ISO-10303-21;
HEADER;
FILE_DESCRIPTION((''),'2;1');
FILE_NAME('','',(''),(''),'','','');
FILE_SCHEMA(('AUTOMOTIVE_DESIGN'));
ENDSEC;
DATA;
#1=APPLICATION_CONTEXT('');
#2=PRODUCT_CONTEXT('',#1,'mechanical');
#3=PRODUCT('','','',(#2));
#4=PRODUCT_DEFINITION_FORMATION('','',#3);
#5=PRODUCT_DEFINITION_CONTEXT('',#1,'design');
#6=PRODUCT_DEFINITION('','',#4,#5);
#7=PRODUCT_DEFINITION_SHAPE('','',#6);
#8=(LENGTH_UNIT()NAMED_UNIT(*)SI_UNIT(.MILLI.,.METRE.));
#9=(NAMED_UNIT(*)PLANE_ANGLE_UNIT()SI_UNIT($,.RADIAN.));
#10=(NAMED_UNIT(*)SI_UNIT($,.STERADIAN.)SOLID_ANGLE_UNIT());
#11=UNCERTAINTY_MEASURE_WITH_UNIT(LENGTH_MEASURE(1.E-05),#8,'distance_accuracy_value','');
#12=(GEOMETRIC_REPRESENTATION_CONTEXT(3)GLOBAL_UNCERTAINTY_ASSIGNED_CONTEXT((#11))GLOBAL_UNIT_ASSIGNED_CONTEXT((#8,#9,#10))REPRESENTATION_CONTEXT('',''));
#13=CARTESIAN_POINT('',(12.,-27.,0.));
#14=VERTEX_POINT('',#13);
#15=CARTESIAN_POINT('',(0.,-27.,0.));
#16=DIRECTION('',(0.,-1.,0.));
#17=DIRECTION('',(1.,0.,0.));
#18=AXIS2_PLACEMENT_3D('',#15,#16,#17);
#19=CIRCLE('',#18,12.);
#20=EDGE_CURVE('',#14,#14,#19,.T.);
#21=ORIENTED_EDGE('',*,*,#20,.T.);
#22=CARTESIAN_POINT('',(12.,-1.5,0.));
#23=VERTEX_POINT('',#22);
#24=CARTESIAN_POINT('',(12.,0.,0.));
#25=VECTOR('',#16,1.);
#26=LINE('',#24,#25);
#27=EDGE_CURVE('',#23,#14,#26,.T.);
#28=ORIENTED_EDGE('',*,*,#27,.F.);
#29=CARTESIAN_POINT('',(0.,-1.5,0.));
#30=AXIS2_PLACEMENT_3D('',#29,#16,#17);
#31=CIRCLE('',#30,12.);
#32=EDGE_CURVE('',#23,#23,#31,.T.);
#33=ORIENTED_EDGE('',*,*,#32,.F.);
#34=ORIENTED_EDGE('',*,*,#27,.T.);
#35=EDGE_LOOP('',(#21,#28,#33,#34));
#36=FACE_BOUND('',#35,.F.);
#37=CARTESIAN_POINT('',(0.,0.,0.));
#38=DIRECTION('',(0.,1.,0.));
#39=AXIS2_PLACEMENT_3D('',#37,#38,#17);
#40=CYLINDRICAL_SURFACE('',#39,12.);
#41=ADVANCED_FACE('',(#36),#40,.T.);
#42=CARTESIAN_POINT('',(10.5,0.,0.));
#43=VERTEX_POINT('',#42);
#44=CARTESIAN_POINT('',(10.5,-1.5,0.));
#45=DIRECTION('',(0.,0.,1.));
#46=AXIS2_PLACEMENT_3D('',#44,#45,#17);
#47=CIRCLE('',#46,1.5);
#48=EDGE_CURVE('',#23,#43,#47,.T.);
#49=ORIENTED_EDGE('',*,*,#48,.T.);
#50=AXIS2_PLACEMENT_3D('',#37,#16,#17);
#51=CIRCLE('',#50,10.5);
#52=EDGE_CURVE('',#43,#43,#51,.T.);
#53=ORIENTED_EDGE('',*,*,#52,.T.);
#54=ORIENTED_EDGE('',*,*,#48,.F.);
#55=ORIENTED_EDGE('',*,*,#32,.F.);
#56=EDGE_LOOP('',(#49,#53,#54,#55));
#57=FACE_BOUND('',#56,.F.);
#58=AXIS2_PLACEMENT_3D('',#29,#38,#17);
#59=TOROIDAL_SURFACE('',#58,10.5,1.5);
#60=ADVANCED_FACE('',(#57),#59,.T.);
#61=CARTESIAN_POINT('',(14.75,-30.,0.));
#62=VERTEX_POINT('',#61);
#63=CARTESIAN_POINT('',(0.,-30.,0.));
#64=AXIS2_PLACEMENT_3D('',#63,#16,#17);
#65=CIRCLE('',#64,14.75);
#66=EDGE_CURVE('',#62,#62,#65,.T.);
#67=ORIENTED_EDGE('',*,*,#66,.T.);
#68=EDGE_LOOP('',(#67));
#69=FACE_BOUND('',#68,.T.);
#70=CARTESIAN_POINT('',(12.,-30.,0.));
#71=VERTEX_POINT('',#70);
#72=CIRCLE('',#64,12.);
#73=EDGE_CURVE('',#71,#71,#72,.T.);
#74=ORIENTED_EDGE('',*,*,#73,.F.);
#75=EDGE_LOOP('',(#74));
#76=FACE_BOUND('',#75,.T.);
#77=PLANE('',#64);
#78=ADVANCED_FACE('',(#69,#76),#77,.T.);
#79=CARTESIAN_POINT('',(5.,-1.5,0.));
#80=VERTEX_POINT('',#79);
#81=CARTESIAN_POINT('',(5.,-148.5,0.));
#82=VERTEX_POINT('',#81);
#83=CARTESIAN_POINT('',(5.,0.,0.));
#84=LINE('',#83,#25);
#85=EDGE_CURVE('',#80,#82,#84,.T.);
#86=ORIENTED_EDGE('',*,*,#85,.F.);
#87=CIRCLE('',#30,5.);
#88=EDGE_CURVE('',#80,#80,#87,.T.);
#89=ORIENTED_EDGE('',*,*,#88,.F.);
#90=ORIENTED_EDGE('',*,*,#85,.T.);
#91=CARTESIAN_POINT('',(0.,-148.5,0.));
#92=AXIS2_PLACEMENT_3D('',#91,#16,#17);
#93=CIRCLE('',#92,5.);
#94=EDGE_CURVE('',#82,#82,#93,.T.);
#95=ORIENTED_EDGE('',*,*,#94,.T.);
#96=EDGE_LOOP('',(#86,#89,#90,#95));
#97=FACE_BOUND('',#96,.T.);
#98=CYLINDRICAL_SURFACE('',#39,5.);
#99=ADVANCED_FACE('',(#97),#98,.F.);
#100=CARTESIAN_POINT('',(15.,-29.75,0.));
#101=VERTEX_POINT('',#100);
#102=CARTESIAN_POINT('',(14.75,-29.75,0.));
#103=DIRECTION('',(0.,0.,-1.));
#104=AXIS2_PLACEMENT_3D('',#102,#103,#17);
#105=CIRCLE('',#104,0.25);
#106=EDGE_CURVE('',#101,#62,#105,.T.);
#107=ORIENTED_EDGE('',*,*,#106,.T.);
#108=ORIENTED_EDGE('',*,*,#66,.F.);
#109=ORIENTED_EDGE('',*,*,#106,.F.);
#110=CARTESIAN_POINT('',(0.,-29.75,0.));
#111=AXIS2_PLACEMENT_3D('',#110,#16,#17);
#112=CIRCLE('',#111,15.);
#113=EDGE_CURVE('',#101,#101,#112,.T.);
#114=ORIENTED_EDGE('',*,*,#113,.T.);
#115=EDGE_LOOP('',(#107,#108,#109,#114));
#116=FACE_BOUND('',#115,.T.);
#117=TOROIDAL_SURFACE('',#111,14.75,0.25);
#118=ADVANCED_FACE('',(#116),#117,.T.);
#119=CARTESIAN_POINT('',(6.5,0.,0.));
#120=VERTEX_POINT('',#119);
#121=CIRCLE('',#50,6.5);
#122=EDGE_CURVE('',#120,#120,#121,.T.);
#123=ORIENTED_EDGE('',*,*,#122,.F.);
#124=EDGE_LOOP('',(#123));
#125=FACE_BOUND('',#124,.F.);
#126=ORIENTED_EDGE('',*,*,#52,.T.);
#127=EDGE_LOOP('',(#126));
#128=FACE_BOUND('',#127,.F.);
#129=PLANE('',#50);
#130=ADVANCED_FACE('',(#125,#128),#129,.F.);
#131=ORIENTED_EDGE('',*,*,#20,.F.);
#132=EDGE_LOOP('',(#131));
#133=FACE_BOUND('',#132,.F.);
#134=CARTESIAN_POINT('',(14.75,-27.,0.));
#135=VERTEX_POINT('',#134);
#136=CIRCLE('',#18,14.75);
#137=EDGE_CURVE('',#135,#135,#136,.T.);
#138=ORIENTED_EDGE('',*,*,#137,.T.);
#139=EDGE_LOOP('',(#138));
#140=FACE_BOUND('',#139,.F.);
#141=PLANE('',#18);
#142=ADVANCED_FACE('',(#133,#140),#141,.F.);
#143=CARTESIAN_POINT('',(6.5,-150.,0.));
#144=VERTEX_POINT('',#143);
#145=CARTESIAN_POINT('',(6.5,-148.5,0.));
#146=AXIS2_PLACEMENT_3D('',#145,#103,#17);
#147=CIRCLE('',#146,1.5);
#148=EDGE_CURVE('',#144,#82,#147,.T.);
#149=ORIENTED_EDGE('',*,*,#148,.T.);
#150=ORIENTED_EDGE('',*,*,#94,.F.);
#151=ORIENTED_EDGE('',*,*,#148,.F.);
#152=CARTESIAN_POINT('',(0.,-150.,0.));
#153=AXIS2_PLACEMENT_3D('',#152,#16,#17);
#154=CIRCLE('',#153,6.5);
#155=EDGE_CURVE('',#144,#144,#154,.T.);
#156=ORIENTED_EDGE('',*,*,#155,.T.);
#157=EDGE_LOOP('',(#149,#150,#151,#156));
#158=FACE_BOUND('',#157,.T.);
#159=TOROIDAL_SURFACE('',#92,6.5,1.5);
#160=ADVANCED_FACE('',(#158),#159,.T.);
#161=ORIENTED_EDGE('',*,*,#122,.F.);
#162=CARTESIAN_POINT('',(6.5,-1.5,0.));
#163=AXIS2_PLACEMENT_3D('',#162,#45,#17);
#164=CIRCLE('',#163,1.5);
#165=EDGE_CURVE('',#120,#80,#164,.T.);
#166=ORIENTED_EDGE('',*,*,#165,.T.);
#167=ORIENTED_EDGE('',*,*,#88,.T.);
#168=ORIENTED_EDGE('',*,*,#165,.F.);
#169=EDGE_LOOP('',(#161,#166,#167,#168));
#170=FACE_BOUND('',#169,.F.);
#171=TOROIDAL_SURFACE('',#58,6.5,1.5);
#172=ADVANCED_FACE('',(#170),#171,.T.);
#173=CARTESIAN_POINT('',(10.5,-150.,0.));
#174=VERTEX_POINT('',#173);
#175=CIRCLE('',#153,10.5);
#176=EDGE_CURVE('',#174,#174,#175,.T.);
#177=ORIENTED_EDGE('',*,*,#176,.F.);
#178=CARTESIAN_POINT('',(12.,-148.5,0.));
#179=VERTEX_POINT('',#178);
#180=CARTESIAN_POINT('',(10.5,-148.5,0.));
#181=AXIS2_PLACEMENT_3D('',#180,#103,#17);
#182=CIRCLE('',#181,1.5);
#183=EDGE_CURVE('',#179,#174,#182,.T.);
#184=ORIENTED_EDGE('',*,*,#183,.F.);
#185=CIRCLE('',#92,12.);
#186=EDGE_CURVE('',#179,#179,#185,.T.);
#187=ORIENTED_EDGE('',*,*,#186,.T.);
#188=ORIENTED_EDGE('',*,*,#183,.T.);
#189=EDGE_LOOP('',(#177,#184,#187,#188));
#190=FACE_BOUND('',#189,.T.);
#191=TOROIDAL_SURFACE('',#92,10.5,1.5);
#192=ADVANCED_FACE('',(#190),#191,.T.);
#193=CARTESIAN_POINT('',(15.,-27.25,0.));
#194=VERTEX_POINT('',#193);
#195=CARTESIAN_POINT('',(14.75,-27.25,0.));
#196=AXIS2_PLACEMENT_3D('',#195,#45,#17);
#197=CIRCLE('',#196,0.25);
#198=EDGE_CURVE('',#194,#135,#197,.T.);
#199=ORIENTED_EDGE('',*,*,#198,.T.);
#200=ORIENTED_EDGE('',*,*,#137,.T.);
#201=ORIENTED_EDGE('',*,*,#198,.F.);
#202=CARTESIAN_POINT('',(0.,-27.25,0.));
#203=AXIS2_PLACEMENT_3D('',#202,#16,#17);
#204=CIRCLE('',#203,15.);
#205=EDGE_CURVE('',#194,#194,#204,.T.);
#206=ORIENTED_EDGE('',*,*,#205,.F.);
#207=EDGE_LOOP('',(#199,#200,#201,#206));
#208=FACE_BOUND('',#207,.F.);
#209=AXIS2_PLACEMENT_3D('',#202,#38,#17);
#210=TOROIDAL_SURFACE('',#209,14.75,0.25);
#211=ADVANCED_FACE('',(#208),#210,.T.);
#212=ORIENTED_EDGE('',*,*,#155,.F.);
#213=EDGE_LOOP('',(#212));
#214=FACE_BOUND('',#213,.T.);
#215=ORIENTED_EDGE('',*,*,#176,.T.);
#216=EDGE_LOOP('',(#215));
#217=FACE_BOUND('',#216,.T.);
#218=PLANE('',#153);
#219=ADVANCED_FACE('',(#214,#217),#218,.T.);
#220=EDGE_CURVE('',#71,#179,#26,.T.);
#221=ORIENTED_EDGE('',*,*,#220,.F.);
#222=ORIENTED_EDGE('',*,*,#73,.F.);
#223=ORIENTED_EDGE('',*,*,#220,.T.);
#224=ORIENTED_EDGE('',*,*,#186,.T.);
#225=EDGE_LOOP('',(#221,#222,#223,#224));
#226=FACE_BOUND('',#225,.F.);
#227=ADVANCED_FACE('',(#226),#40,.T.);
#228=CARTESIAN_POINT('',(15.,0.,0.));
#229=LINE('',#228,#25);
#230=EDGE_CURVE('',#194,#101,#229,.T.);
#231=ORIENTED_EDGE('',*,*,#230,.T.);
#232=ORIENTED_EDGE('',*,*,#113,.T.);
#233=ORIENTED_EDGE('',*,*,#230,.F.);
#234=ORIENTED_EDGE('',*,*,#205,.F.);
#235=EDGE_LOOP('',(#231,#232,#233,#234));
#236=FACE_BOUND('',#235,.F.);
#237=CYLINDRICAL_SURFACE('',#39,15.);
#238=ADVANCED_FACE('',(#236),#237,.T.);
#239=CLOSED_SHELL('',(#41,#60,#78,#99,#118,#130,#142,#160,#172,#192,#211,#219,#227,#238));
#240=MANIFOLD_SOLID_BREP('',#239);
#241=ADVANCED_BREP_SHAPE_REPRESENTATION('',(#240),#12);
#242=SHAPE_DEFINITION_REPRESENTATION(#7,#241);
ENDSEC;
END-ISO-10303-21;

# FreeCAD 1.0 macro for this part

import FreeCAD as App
import Part
import Sketcher


def edges_at(feature, points):
    """Names of the edges that pass closest to the given points."""
    edges = feature.Shape.Edges
    near = lambda p: min(range(len(edges)), key=lambda i: edges[i].distToShape(Part.Vertex(*p))[0])
    return sorted({f"Edge{near(p) + 1}" for p in points})

doc = App.newDocument("Part")
params = doc.addObject("Spreadsheet::Sheet", "Params")
for row, (alias, value) in enumerate([
    ("sketch1_diameter", "24 mm"),
    ("sketch1_diameter2", "10 mm"),
    ("pad1_length", "150 mm"),
    ("sketch2_diameter", "30 mm"),
    ("sketch2_diameter2", "24 mm"),
    ("pad2_length", "30 mm"),
    ("sketch3_diameter", "30 mm"),
    ("sketch3_diameter2", "24 mm"),
    ("pocket1_length", "27 mm"),
    ("fillet_radius", "0.25 mm"),
    ("fillet2_radius", "1.5 mm"),
], start=1):
    params.set(f"A{row}", alias)
    params.set(f"B{row}", "=" + value)
    params.setAlias(f"B{row}", alias)

body = doc.addObject("PartDesign::Body", "Body")

# Sketch on XZ plane
sketch1 = doc.addObject("Sketcher::SketchObject", "Sketch")
body.addObject(sketch1)
sketch1.AttachmentSupport = (doc.XZ_Plane, [""])
sketch1.MapMode = "FlatFace"
sketch1.addGeometry(Part.Circle(App.Vector(0, 0, 0), App.Vector(0, 0, 1), 12), False)
sketch1.addGeometry(Part.Circle(App.Vector(0, 0, 0), App.Vector(0, 0, 1), 5), False)
sketch1.addConstraint(Sketcher.Constraint("Coincident", 0, 3, -1, 1))
sketch1.addConstraint(Sketcher.Constraint("Coincident", 1, 3, -1, 1))
sketch1.addConstraint(Sketcher.Constraint("Diameter", 0, 24.0))
sketch1.addConstraint(Sketcher.Constraint("Diameter", 1, 10.0))
sketch1.setExpression("Constraints[2]", "Params.sketch1_diameter")
sketch1.setExpression("Constraints[3]", "Params.sketch1_diameter2")
pad1 = doc.addObject("PartDesign::Pad", "Pad")
body.addObject(pad1)
pad1.Profile = sketch1
pad1.setExpression("Length", "Params.pad1_length")

# Sketch on XZ plane
sketch2 = doc.addObject("Sketcher::SketchObject", "Sketch001")
body.addObject(sketch2)
sketch2.AttachmentSupport = (doc.XZ_Plane, [""])
sketch2.MapMode = "FlatFace"
sketch2.addGeometry(Part.Circle(App.Vector(0, 0, 0), App.Vector(0, 0, 1), 15), False)
sketch2.addGeometry(Part.Circle(App.Vector(0, 0, 0), App.Vector(0, 0, 1), 12), False)
sketch2.addConstraint(Sketcher.Constraint("Coincident", 0, 3, -1, 1))
sketch2.addConstraint(Sketcher.Constraint("Coincident", 1, 3, -1, 1))
sketch2.addConstraint(Sketcher.Constraint("Diameter", 0, 30.0))
sketch2.addConstraint(Sketcher.Constraint("Diameter", 1, 24.0))
sketch2.setExpression("Constraints[2]", "Params.sketch2_diameter")
sketch2.setExpression("Constraints[3]", "Params.sketch2_diameter2")
pad2 = doc.addObject("PartDesign::Pad", "Pad001")
body.addObject(pad2)
pad2.Profile = sketch2
pad2.setExpression("Length", "Params.pad2_length")

# Sketch on XZ plane
sketch3 = doc.addObject("Sketcher::SketchObject", "Sketch002")
body.addObject(sketch3)
sketch3.AttachmentSupport = (doc.XZ_Plane, [""])
sketch3.MapMode = "FlatFace"
sketch3.addGeometry(Part.Circle(App.Vector(0, 0, 0), App.Vector(0, 0, 1), 15), False)
sketch3.addGeometry(Part.Circle(App.Vector(0, 0, 0), App.Vector(0, 0, 1), 12), False)
sketch3.addConstraint(Sketcher.Constraint("Coincident", 0, 3, -1, 1))
sketch3.addConstraint(Sketcher.Constraint("Coincident", 1, 3, -1, 1))
sketch3.addConstraint(Sketcher.Constraint("Diameter", 0, 30.0))
sketch3.addConstraint(Sketcher.Constraint("Diameter", 1, 24.0))
sketch3.setExpression("Constraints[2]", "Params.sketch3_diameter")
sketch3.setExpression("Constraints[3]", "Params.sketch3_diameter2")
pocket1 = doc.addObject("PartDesign::Pocket", "Pocket")
body.addObject(pocket1)
pocket1.Profile = sketch3
pocket1.setExpression("Length", "Params.pocket1_length")
pocket1.Reversed = True
doc.recompute()

fillet = doc.addObject("PartDesign::Fillet", "Fillet")
body.addObject(fillet)
fillet.Base = (pocket1, edges_at(pocket1, [(-15, -30, 0), (-15, -27, 0)]))
fillet.setExpression("Radius", "Params.fillet_radius")
doc.recompute()

fillet2 = doc.addObject("PartDesign::Fillet", "Fillet001")
body.addObject(fillet2)
fillet2.Base = (fillet, edges_at(fillet, [
    (-12, 0, 0),
    (-12, -150, 0),
    (-5, 0, 0),
    (-5, -150, 0),
]))
fillet2.setExpression("Radius", "Params.fillet2_radius")

doc.recompute()
